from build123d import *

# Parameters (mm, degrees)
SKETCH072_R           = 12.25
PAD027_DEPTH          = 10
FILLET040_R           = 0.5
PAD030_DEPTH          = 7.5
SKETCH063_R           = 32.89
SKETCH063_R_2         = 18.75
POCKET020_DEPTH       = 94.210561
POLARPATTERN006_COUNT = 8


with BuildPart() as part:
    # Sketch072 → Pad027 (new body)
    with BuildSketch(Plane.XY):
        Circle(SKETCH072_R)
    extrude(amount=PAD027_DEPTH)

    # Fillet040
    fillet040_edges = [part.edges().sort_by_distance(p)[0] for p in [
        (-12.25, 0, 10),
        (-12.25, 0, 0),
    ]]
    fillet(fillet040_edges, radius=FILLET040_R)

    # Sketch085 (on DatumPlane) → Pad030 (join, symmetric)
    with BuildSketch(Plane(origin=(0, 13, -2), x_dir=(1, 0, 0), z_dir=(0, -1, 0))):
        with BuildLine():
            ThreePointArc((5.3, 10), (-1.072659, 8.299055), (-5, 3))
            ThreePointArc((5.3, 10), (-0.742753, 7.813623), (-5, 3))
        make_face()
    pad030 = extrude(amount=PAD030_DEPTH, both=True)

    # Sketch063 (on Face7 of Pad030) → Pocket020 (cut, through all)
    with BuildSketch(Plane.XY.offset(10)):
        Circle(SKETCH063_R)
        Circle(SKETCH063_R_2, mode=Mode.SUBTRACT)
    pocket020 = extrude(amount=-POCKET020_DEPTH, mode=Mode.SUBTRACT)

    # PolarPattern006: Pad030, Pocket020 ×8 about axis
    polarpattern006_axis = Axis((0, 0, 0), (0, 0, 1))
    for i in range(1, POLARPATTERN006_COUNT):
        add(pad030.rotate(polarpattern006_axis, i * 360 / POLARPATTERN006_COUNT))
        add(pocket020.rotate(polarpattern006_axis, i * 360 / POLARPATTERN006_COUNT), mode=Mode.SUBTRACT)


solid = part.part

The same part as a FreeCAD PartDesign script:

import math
import FreeCAD as App
import Part
import Sketcher
from FreeCAD import Vector


def edges_at(feature, points):
    """Names of the edges that pass closest to the given points."""
    edges = feature.Shape.Edges
    near = lambda p: min(range(len(edges)), key=lambda i: edges[i].distToShape(Part.Vertex(*p))[0])
    return sorted({f"Edge{near(p) + 1}" for p in points})

doc = App.newDocument("Part")
body = doc.addObject("PartDesign::Body", "Body")

# Sketch on XY plane
sketch1 = doc.addObject("Sketcher::SketchObject", "Sketch")
body.addObject(sketch1)
sketch1.AttachmentSupport = (doc.XY_Plane, [""])
sketch1.MapMode = "FlatFace"
sketch1.addGeometry(Part.Circle(Vector(0, 0, 0), Vector(0, 0, 1), 12), False)
sketch1.addConstraint(Sketcher.Constraint("Coincident", 0, 3, -1, 1))
sketch1.addConstraint(Sketcher.Constraint("Diameter", 0, 24.5))
pad1 = doc.addObject("PartDesign::Pad", "Pad")
body.addObject(pad1)
pad1.Profile = sketch1
pad1.Length = 10
doc.recompute()

fillet = doc.addObject("PartDesign::Fillet", "Fillet")
body.addObject(fillet)
fillet.Base = (pad1, edges_at(pad1, [(-12.25, 0, 10), (-12.25, 0, 0)]))
fillet.Radius = 0.5

# Sketch on XZ plane
sketch2 = doc.addObject("Sketcher::SketchObject", "Sketch001")
body.addObject(sketch2)
sketch2.AttachmentSupport = (doc.XZ_Plane, [""])
sketch2.MapMode = "FlatFace"
sketch2.AttachmentOffset = App.Placement(Vector(0, 0, -13), App.Rotation())
sketch2.addGeometry(Part.ArcOfCircle(Part.Circle(Vector(5, -2, 0), Vector(0, 0, 1), 10), math.radians(86), math.radians(163)), False)
sketch2.addGeometry(Part.ArcOfCircle(Part.Circle(Vector(7, -5, 0), Vector(0, 0, 1), 13), math.radians(96), math.radians(153)), False)
sketch2.addConstraint(Sketcher.Constraint("Coincident", 0, 1, 1, 1))
sketch2.addConstraint(Sketcher.Constraint("Coincident", 1, 2, 0, 2))
sketch2.addConstraint(Sketcher.Constraint("Radius", 0, 10.0))
sketch2.addConstraint(Sketcher.Constraint("Radius", 1, 12.999999))
sketch2.addConstraint(Sketcher.Constraint("DistanceY", -1, 1, 0, 1, 8.0))
sketch2.addConstraint(Sketcher.Constraint("DistanceX", 1, 2, -1, 1, 5.0))
sketch2.addConstraint(Sketcher.Constraint("DistanceY", -1, 1, 1, 2, 1.0))
sketch2.addConstraint(Sketcher.Constraint("DistanceX", -1, 1, 0, 1, 5.3))
pad2 = doc.addObject("PartDesign::Pad", "Pad001")
body.addObject(pad2)
pad2.Profile = sketch2
pad2.Length = 15
pad2.Midplane = True

# Sketch on XY plane
sketch3 = doc.addObject("Sketcher::SketchObject", "Sketch002")
body.addObject(sketch3)
sketch3.AttachmentSupport = (doc.XY_Plane, [""])
sketch3.MapMode = "FlatFace"
sketch3.AttachmentOffset = App.Placement(Vector(0, 0, 10), App.Rotation())
sketch3.addGeometry(Part.Circle(Vector(0, 0, 0), Vector(0, 0, 1), 33), False)
sketch3.addGeometry(Part.Circle(Vector(0, 0, 0), Vector(0, 0, 1), 19), False)
sketch3.addConstraint(Sketcher.Constraint("Coincident", 0, 3, -1, 1))
sketch3.addConstraint(Sketcher.Constraint("Coincident", 1, 3, -1, 1))
sketch3.addConstraint(Sketcher.Constraint("Diameter", 1, 37.5))
sketch3.addConstraint(Sketcher.Constraint("Diameter", 0, 65.78))
pocket1 = doc.addObject("PartDesign::Pocket", "Pocket")
body.addObject(pocket1)
pocket1.Profile = sketch3
pocket1.Type = "ThroughAll"
doc.recompute()

polarpattern = doc.addObject("PartDesign::PolarPattern", "PolarPattern")
body.addObject(polarpattern)
polarpattern.Originals = [pad2, pocket1]
polarpattern.Axis = (doc.Z_Axis, [""])
polarpattern.Angle = 360
polarpattern.Occurrences = 8
body.Tip = polarpattern

doc.recompute()
